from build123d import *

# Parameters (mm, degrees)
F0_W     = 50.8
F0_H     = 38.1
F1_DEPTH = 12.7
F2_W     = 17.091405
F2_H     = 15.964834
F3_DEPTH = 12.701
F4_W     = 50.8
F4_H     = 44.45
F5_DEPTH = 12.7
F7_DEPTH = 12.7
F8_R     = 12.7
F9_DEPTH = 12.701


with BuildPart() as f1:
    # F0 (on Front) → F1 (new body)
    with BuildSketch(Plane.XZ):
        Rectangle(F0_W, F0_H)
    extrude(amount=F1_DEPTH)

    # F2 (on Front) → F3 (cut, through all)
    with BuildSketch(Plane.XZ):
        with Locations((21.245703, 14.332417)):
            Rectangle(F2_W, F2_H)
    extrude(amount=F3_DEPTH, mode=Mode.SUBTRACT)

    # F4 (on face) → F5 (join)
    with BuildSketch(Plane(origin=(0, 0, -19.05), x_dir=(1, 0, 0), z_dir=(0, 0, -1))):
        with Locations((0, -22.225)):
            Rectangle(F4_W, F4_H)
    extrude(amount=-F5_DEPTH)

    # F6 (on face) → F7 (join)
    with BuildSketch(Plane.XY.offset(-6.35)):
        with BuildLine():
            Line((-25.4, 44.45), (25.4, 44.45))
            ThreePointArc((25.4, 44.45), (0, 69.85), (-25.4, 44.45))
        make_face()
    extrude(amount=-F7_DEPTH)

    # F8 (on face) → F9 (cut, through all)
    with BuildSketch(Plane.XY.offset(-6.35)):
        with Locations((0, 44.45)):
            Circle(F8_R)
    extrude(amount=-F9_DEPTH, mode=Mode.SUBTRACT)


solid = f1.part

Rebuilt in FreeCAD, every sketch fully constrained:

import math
import FreeCAD as App
import Part
import Sketcher
Q = App.Units.Quantity


def add_polygon(sketch, points):
    """Adds a closed chain of lines whose ends are joined by coincident constraints."""
    first, n = sketch.GeometryCount, len(points)
    for a, b in zip(points, points[1:] + points[:1]):
        sketch.addGeometry(Part.LineSegment(App.Vector(*a, 0), App.Vector(*b, 0)), False)
    for i in range(n):
        sketch.addConstraint(Sketcher.Constraint("Coincident", first + i, 2, first + (i + 1) % n, 1))

doc = App.newDocument("Part")
body = doc.addObject("PartDesign::Body", "Body")

sketch1 = body.newObject("Sketcher::SketchObject", "Sketch")
sketch1.AttachmentSupport = (doc.getObject("XZ_Plane"), [""])
sketch1.MapMode = "FlatFace"
add_polygon(sketch1, [(-25, 19), (-25, -19), (25, -19), (25, 19)])
sketch1.addConstraint([
    Sketcher.Constraint("Vertical", 0),
    Sketcher.Constraint("Horizontal", 1),
    Sketcher.Constraint("Vertical", 2),
    Sketcher.Constraint("Horizontal", 3),
    Sketcher.Constraint("Symmetric", 0, 2, 2, 2, -1, 1),
    Sketcher.Constraint("DistanceX", 1, 1, 1, 2, Q("2 in")),
    Sketcher.Constraint("DistanceY", 0, 2, 0, 1, Q("1.5 in")),
])
pad1 = body.newObject("PartDesign::Pad", "Pad")
pad1.Profile = sketch1
pad1.Length = Q("0.5 in")

sketch2 = body.newObject("Sketcher::SketchObject", "Sketch001")
sketch2.AttachmentSupport = (doc.getObject("XZ_Plane"), [""])
sketch2.MapMode = "FlatFace"
add_polygon(sketch2, [(13, 22), (13, 6), (30, 6), (30, 22)])
sketch2.addConstraint([
    Sketcher.Constraint("Vertical", 0),
    Sketcher.Constraint("Horizontal", 1),
    Sketcher.Constraint("Vertical", 2),
    Sketcher.Constraint("Horizontal", 3),
    Sketcher.Constraint("DistanceX", -1, 1, 0, 2, Q("0.5 in")),
    Sketcher.Constraint("DistanceY", -1, 1, 0, 2, Q("0.25 in")),
    Sketcher.Constraint("DistanceX", 1, 1, 1, 2, Q("17.091405 mm")),
    Sketcher.Constraint("DistanceY", 0, 2, 0, 1, Q("15.964834 mm")),
])
pocket1 = body.newObject("PartDesign::Pocket", "Pocket")
pocket1.Profile = sketch2
pocket1.Type = "ThroughAll"
pocket1.Reversed = True

sketch3 = body.newObject("Sketcher::SketchObject", "Sketch002")
sketch3.AttachmentSupport = (doc.getObject("XY_Plane"), [""])
sketch3.MapMode = "FlatFace"
sketch3.AttachmentOffset = App.Placement(App.Vector(0, 0, -0.75 * 25.4), App.Rotation())
add_polygon(sketch3, [(-25, 0), (-25, 44), (25, 44), (25, 0)])
sketch3.addConstraint([
    Sketcher.Constraint("Vertical", 0),
    Sketcher.Constraint("Horizontal", 1),
    Sketcher.Constraint("Vertical", 2),
    Sketcher.Constraint("Horizontal", 3),
    Sketcher.Constraint("Symmetric", 2, 2, 3, 2, -1, 1),
    Sketcher.Constraint("DistanceX", 1, 1, 1, 2, Q("2 in")),
    Sketcher.Constraint("DistanceY", 0, 1, 0, 2, Q("1.75 in")),
])
pad2 = body.newObject("PartDesign::Pad", "Pad001")
pad2.Profile = sketch3
pad2.Length = Q("0.5 in")

sketch4 = body.newObject("Sketcher::SketchObject", "Sketch003")
sketch4.AttachmentSupport = (doc.getObject("XY_Plane"), [""])
sketch4.MapMode = "FlatFace"
sketch4.AttachmentOffset = App.Placement(App.Vector(0, 0, -0.25 * 25.4), App.Rotation())
sketch4.addGeometry([
    Part.LineSegment(App.Vector(-25, 44, 0), App.Vector(25, 44, 0)),
    Part.ArcOfCircle(Part.Circle(App.Vector(0, 44, 0), App.Vector(0, 0, 1), 25), math.radians(0), math.radians(180)),
], False)
sketch4.addConstraint([
    Sketcher.Constraint("Coincident", 0, 1, 1, 2),
    Sketcher.Constraint("Coincident", 1, 1, 0, 2),
    Sketcher.Constraint("Horizontal", 0),
    Sketcher.Constraint("PointOnObject", 1, 3, -2),
    Sketcher.Constraint("Horizontal", 1, 3, 0, 1),
    Sketcher.Constraint("Radius", 1, Q("1 in")),
    Sketcher.Constraint("DistanceY", -1, 1, 1, 3, Q("1.75 in")),
])
pad3 = body.newObject("PartDesign::Pad", "Pad002")
pad3.Profile = sketch4
pad3.Length = Q("0.5 in")
pad3.Reversed = True

sketch5 = body.newObject("Sketcher::SketchObject", "Sketch004")
sketch5.AttachmentSupport = (doc.getObject("XY_Plane"), [""])
sketch5.MapMode = "FlatFace"
sketch5.AttachmentOffset = App.Placement(App.Vector(0, 0, -0.25 * 25.4), App.Rotation())
sketch5.addGeometry(Part.Circle(App.Vector(0, 44, 0), App.Vector(0, 0, 1), 13), False)
sketch5.addConstraint([
    Sketcher.Constraint("PointOnObject", 0, 3, -2),
    Sketcher.Constraint("Diameter", 0, Q("1 in")),
    Sketcher.Constraint("DistanceY", -1, 1, 0, 3, Q("1.75 in")),
])
pocket2 = body.newObject("PartDesign::Pocket", "Pocket001")
pocket2.Profile = sketch5
pocket2.Type = "ThroughAll"

doc.recompute()
